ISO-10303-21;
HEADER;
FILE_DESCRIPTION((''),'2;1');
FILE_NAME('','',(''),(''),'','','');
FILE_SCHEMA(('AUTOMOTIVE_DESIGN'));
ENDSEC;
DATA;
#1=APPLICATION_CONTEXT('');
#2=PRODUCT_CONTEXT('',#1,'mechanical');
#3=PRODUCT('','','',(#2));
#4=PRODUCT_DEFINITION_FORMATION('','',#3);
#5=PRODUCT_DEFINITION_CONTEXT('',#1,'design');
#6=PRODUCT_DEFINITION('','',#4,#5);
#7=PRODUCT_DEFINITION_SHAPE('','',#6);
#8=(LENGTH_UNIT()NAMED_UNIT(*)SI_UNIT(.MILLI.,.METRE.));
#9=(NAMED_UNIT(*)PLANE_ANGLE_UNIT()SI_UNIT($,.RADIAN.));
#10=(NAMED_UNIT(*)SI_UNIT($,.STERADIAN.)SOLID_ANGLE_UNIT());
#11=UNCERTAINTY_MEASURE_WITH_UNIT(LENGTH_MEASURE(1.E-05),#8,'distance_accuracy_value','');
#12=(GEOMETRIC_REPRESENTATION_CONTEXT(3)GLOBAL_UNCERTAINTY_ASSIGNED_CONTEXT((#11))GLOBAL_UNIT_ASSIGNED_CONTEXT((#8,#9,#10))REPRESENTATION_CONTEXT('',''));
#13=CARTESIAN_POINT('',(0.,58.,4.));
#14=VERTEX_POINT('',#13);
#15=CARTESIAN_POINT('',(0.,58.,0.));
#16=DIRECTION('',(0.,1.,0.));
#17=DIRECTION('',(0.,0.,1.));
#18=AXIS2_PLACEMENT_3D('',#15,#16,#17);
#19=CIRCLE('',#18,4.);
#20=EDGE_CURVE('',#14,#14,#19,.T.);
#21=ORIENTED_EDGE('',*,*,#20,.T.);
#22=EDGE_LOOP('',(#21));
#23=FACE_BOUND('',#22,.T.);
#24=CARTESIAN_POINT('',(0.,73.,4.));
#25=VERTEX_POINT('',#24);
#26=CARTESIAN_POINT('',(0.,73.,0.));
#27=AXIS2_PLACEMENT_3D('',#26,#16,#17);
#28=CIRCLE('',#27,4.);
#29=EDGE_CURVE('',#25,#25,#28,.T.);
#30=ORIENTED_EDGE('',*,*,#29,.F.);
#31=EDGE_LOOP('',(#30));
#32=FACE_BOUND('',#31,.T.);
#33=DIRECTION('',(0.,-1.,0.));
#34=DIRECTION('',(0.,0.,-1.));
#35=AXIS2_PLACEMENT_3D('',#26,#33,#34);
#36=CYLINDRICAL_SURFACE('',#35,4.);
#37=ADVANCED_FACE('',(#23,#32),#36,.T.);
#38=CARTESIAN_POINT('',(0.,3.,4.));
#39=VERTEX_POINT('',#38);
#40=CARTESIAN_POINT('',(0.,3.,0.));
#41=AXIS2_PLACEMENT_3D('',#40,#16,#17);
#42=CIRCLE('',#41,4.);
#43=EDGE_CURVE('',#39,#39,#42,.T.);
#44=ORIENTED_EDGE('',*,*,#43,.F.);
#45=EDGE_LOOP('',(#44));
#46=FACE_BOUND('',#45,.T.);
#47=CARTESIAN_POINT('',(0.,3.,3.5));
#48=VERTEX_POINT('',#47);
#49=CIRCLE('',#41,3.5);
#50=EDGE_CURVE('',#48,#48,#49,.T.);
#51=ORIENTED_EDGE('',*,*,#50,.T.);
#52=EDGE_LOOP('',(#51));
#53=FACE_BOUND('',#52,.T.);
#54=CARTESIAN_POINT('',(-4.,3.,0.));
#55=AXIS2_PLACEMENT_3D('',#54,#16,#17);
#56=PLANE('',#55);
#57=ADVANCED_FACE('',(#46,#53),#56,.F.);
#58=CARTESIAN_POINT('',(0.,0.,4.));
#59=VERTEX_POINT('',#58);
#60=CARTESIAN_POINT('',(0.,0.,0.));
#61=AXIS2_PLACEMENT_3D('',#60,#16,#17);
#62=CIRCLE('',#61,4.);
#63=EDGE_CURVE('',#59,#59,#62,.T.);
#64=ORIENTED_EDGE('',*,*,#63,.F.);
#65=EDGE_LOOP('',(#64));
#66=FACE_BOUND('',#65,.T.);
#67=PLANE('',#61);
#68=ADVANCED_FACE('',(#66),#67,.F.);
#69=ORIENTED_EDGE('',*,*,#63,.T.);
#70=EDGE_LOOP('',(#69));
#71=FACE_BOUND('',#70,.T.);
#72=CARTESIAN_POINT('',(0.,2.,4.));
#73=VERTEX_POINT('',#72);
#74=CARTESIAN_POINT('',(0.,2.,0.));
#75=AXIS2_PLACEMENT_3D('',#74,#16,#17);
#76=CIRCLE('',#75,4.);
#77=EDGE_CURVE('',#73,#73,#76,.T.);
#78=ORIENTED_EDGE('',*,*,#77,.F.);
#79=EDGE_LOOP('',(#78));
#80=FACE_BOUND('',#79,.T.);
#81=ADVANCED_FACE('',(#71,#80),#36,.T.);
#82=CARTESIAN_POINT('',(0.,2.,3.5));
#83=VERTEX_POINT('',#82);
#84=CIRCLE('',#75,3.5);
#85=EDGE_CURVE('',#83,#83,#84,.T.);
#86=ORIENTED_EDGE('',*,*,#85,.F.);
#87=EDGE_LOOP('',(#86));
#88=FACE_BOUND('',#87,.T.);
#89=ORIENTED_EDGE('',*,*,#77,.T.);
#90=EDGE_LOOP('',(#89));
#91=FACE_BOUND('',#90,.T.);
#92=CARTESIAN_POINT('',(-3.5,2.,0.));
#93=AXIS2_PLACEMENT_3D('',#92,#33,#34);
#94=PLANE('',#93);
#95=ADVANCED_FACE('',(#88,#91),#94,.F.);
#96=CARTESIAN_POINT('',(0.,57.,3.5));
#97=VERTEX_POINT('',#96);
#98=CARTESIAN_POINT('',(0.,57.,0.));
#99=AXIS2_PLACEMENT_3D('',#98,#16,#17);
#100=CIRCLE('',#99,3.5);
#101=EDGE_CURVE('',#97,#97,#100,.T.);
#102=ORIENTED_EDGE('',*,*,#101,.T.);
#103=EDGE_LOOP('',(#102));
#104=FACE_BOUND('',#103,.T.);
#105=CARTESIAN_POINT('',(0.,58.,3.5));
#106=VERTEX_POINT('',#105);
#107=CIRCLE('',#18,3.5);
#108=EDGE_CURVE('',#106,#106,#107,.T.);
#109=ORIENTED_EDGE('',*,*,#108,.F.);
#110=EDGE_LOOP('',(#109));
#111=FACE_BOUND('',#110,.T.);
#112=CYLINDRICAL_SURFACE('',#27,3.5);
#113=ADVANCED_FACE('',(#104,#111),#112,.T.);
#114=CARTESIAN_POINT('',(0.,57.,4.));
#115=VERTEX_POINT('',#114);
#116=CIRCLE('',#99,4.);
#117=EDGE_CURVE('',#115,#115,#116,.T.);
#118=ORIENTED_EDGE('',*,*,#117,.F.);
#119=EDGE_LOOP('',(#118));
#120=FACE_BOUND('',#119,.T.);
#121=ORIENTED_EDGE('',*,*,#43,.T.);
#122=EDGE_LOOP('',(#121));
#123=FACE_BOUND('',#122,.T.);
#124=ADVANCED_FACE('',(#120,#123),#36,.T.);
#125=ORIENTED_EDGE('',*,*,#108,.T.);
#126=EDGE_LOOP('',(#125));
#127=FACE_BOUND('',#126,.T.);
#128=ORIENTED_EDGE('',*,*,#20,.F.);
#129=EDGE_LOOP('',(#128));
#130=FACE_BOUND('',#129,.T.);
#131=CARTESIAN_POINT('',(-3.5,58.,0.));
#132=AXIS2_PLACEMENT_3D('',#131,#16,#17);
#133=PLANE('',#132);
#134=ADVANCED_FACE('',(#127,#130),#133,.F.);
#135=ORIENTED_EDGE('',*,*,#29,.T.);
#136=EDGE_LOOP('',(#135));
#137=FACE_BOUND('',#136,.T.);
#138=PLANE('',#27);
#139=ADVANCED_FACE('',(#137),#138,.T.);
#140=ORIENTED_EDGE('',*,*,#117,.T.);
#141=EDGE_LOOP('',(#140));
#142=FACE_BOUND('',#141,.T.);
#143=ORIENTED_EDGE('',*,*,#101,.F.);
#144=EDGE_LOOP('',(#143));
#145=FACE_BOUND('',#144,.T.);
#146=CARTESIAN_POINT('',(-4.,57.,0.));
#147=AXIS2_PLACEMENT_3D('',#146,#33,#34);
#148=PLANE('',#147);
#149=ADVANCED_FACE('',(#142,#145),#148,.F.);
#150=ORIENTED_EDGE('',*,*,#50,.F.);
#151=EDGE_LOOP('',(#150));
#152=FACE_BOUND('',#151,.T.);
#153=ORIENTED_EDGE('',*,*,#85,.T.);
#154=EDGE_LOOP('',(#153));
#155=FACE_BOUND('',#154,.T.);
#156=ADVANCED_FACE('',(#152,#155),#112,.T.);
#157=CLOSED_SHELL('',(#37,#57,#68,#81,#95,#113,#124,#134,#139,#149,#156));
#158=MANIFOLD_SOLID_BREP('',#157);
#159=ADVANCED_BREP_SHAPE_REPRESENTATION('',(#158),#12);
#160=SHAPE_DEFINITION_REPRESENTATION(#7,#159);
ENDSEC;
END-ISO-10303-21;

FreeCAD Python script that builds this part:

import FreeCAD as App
import Part
import Sketcher
Q = App.Units.Quantity


def add_polygon(sketch, points):
    """Adds a closed chain of lines whose ends are joined by coincident constraints."""
    first, n = sketch.GeometryCount, len(points)
    for a, b in zip(points, points[1:] + points[:1]):
        sketch.addGeometry(Part.LineSegment(App.Vector(*a, 0), App.Vector(*b, 0)), False)
    for i in range(n):
        sketch.addConstraint(Sketcher.Constraint("Coincident", first + i, 2, first + (i + 1) % n, 1))

doc = App.newDocument("Part")
body = doc.addObject("PartDesign::Body", "Body")

# Sketch on XZ plane
sketch1 = doc.addObject("Sketcher::SketchObject", "Sketch")
body.addObject(sketch1)
sketch1.AttachmentSupport = (doc.XZ_Plane, [""])
sketch1.MapMode = "FlatFace"
sketch1.addGeometry(Part.Circle(App.Vector(0, 0, 0), App.Vector(0, 0, 1), 4), False)
sketch1.addConstraint(Sketcher.Constraint("Coincident", 0, 3, -1, 1))
sketch1.addConstraint(Sketcher.Constraint("Diameter", 0, Q("8 mm")))
pad1 = doc.addObject("PartDesign::Pad", "Pad")
body.addObject(pad1)
pad1.Profile = sketch1
pad1.Length = 73
pad1.Reversed = True

# Sketch on XY plane
sketch2 = doc.addObject("Sketcher::SketchObject", "Sketch001")
body.addObject(sketch2)
sketch2.AttachmentSupport = (doc.XY_Plane, [""])
sketch2.MapMode = "FlatFace"
add_polygon(sketch2, [(-4, 58), (-4, 57), (-3.5, 57), (-3.5, 58)])  # lines 0-3
add_polygon(sketch2, [(-4, 3), (-4, 2), (-3.5, 2), (-3.5, 3)])  # lines 4-7
sketch2.addConstraint(Sketcher.Constraint("Vertical", 0))
sketch2.addConstraint(Sketcher.Constraint("Horizontal", 1))
sketch2.addConstraint(Sketcher.Constraint("Vertical", 2))
sketch2.addConstraint(Sketcher.Constraint("Horizontal", 3))
sketch2.addConstraint(Sketcher.Constraint("Vertical", 4))
sketch2.addConstraint(Sketcher.Constraint("Horizontal", 5))
sketch2.addConstraint(Sketcher.Constraint("Vertical", 6))
sketch2.addConstraint(Sketcher.Constraint("Horizontal", 7))
sketch2.addConstraint(Sketcher.Constraint("Vertical", 3, 2, 4, 2))
sketch2.addConstraint(Sketcher.Constraint("Vertical", 2, 2, 5, 2))
sketch2.addConstraint(Sketcher.Constraint("Equal", 2, 4))
sketch2.addConstraint(Sketcher.Constraint("DistanceY", 0, 2, 0, 1, Q("1 mm")))
sketch2.addConstraint(Sketcher.Constraint("DistanceX", 1, 1, 1, 2, Q("0.5 mm")))
sketch2.addConstraint(Sketcher.Constraint("DistanceX", 0, 2, -1, 1, Q("4 mm")))
sketch2.addConstraint(Sketcher.Constraint("DistanceY", -1, 1, 0, 2, Q("57 mm")))
sketch2.addConstraint(Sketcher.Constraint("DistanceY", -1, 1, 4, 2, Q("2 mm")))
groove = doc.addObject("PartDesign::Groove", "Groove")
body.addObject(groove)
groove.Profile = sketch2
groove.ReferenceAxis = (sketch2, ["V_Axis"])
groove.Angle = 360

doc.recompute()
